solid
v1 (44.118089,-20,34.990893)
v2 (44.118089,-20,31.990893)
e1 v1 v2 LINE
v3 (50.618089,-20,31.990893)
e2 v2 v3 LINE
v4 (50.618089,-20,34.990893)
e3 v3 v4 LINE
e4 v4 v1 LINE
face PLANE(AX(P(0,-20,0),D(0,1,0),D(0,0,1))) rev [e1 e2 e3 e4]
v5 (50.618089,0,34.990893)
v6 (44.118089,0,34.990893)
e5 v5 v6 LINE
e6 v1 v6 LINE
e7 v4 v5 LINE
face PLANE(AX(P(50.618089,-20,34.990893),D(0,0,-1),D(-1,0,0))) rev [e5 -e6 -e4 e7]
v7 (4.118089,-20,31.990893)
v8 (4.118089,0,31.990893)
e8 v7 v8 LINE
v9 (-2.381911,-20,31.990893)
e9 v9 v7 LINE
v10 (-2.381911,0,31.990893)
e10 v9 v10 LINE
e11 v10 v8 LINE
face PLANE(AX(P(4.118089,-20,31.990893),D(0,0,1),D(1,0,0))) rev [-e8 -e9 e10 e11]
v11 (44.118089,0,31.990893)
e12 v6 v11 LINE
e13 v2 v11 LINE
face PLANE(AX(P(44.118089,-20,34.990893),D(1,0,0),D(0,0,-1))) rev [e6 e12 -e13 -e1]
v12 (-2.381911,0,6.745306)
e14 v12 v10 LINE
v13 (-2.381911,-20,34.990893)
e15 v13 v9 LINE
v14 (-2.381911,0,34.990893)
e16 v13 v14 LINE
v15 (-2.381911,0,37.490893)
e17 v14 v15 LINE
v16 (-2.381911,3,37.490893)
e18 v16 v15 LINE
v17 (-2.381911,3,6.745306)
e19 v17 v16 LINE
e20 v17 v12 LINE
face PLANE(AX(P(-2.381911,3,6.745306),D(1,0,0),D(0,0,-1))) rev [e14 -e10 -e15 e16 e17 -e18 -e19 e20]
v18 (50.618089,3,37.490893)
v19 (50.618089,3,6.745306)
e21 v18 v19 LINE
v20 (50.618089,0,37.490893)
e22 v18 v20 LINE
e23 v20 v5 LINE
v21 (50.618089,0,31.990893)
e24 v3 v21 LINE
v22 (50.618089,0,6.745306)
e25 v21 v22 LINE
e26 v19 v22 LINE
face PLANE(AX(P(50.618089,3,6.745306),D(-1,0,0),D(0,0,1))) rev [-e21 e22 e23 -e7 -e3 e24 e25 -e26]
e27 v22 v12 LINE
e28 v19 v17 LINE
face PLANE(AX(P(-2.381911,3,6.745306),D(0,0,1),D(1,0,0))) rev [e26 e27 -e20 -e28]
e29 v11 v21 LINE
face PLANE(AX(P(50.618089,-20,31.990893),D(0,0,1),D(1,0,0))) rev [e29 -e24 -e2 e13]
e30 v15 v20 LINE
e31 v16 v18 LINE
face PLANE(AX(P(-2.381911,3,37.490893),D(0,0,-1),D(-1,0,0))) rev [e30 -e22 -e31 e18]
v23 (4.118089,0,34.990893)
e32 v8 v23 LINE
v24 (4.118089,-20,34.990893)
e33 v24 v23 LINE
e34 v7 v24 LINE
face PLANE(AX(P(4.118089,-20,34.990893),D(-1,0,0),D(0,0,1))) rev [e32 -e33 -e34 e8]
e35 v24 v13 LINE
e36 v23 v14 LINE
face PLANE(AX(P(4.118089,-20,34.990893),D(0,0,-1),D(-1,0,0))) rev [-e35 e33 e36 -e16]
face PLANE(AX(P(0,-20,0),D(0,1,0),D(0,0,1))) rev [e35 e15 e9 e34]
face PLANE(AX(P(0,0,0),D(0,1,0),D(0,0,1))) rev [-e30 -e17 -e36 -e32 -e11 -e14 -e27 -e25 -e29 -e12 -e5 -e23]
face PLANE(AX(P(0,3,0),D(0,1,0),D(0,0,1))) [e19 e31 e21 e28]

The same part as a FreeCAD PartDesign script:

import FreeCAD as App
import Part
import Sketcher


def add_polygon(sketch, points):
    """Adds a closed chain of lines whose ends are joined by coincident constraints."""
    first, n = sketch.GeometryCount, len(points)
    for a, b in zip(points, points[1:] + points[:1]):
        sketch.addGeometry(Part.LineSegment(App.Vector(*a, 0), App.Vector(*b, 0)), False)
    for i in range(n):
        sketch.addConstraint(Sketcher.Constraint("Coincident", first + i, 2, first + (i + 1) % n, 1))

doc = App.newDocument("Part")
params = doc.addObject("Spreadsheet::Sheet", "Params")
for row, (alias, value) in enumerate([
    ("sketch1_width", "53 mm"),
    ("pad1_length", "3 mm"),
    ("sketch2_height", "3 mm"),
    ("sketch2_width", "6.5 mm"),
    ("pad2_length", "20 mm"),
], start=1):
    params.set(f"A{row}", alias)
    params.set(f"B{row}", "=" + value)
    params.setAlias(f"B{row}", alias)

body = doc.addObject("PartDesign::Body", "Body")

sketch1 = body.newObject("Sketcher::SketchObject", "Sketch")
sketch1.AttachmentSupport = (doc.getObject("XZ_Plane"), [""])
sketch1.MapMode = "FlatFace"
add_polygon(sketch1, [(-2.381911, 6.745306), (-2.381911, 37.490893), (50.618089, 37.490893), (50.618089, 6.745306)])
sketch1.addConstraint(Sketcher.Constraint("Vertical", 0))
sketch1.addConstraint(Sketcher.Constraint("Horizontal", 1))
sketch1.addConstraint(Sketcher.Constraint("Vertical", 2))
sketch1.addConstraint(Sketcher.Constraint("Horizontal", 3))
sketch1.addConstraint(Sketcher.Constraint("DistanceX", 1, 1, 1, 2, 53.0))
sketch1.addConstraint(Sketcher.Constraint("DistanceY", 0, 1, 0, 2, 30.745586))
sketch1.addConstraint(Sketcher.Constraint("DistanceX", 0, 2, -1, 1, 2.381911))
sketch1.addConstraint(Sketcher.Constraint("DistanceY", -1, 1, 0, 2, 37.490893))
sketch1.setExpression("Constraints[8]", "Params.sketch1_width")
pad1 = body.newObject("PartDesign::Pad", "Pad")
pad1.Profile = sketch1
pad1.setExpression("Length", "Params.pad1_length")
pad1.Reversed = True

sketch2 = body.newObject("Sketcher::SketchObject", "Sketch001")
sketch2.AttachmentSupport = (doc.getObject("XZ_Plane"), [""])
sketch2.MapMode = "FlatFace"
add_polygon(sketch2, [(44.118089, 34.990893), (44.118089, 31.990893), (50.618089, 31.990893), (50.618089, 34.990893)])
add_polygon(sketch2, [(-2.381911, 34.990893), (-2.381911, 31.990893), (4.118089, 31.990893), (4.118089, 34.990893)])
sketch2.addConstraint(Sketcher.Constraint("Vertical", 0))
sketch2.addConstraint(Sketcher.Constraint("Horizontal", 1))
sketch2.addConstraint(Sketcher.Constraint("Vertical", 2))
sketch2.addConstraint(Sketcher.Constraint("Horizontal", 3))
sketch2.addConstraint(Sketcher.Constraint("Vertical", 4))
sketch2.addConstraint(Sketcher.Constraint("Horizontal", 5))
sketch2.addConstraint(Sketcher.Constraint("Vertical", 6))
sketch2.addConstraint(Sketcher.Constraint("Horizontal", 7))
sketch2.addConstraint(Sketcher.Constraint("Horizontal", 1, 2, 4, 2))
sketch2.addConstraint(Sketcher.Constraint("Horizontal", 3, 2, 6, 2))
sketch2.addConstraint(Sketcher.Constraint("Equal", 3, 5))
sketch2.addConstraint(Sketcher.Constraint("DistanceY", 0, 2, 0, 1, 3.0))
sketch2.addConstraint(Sketcher.Constraint("DistanceX", 1, 1, 1, 2, 6.5))
sketch2.addConstraint(Sketcher.Constraint("DistanceX", 4, 2, 1, 2, 53.0))
sketch2.addConstraint(Sketcher.Constraint("DistanceX", -1, 1, 0, 2, 44.118089))
sketch2.addConstraint(Sketcher.Constraint("DistanceY", -1, 1, 0, 2, 31.990893))
sketch2.setExpression("Constraints[19]", "Params.sketch2_height")
sketch2.setExpression("Constraints[20]", "Params.sketch2_width")
pad2 = body.newObject("PartDesign::Pad", "Pad001")
pad2.Profile = sketch2
pad2.setExpression("Length", "Params.pad2_length")

doc.recompute()
